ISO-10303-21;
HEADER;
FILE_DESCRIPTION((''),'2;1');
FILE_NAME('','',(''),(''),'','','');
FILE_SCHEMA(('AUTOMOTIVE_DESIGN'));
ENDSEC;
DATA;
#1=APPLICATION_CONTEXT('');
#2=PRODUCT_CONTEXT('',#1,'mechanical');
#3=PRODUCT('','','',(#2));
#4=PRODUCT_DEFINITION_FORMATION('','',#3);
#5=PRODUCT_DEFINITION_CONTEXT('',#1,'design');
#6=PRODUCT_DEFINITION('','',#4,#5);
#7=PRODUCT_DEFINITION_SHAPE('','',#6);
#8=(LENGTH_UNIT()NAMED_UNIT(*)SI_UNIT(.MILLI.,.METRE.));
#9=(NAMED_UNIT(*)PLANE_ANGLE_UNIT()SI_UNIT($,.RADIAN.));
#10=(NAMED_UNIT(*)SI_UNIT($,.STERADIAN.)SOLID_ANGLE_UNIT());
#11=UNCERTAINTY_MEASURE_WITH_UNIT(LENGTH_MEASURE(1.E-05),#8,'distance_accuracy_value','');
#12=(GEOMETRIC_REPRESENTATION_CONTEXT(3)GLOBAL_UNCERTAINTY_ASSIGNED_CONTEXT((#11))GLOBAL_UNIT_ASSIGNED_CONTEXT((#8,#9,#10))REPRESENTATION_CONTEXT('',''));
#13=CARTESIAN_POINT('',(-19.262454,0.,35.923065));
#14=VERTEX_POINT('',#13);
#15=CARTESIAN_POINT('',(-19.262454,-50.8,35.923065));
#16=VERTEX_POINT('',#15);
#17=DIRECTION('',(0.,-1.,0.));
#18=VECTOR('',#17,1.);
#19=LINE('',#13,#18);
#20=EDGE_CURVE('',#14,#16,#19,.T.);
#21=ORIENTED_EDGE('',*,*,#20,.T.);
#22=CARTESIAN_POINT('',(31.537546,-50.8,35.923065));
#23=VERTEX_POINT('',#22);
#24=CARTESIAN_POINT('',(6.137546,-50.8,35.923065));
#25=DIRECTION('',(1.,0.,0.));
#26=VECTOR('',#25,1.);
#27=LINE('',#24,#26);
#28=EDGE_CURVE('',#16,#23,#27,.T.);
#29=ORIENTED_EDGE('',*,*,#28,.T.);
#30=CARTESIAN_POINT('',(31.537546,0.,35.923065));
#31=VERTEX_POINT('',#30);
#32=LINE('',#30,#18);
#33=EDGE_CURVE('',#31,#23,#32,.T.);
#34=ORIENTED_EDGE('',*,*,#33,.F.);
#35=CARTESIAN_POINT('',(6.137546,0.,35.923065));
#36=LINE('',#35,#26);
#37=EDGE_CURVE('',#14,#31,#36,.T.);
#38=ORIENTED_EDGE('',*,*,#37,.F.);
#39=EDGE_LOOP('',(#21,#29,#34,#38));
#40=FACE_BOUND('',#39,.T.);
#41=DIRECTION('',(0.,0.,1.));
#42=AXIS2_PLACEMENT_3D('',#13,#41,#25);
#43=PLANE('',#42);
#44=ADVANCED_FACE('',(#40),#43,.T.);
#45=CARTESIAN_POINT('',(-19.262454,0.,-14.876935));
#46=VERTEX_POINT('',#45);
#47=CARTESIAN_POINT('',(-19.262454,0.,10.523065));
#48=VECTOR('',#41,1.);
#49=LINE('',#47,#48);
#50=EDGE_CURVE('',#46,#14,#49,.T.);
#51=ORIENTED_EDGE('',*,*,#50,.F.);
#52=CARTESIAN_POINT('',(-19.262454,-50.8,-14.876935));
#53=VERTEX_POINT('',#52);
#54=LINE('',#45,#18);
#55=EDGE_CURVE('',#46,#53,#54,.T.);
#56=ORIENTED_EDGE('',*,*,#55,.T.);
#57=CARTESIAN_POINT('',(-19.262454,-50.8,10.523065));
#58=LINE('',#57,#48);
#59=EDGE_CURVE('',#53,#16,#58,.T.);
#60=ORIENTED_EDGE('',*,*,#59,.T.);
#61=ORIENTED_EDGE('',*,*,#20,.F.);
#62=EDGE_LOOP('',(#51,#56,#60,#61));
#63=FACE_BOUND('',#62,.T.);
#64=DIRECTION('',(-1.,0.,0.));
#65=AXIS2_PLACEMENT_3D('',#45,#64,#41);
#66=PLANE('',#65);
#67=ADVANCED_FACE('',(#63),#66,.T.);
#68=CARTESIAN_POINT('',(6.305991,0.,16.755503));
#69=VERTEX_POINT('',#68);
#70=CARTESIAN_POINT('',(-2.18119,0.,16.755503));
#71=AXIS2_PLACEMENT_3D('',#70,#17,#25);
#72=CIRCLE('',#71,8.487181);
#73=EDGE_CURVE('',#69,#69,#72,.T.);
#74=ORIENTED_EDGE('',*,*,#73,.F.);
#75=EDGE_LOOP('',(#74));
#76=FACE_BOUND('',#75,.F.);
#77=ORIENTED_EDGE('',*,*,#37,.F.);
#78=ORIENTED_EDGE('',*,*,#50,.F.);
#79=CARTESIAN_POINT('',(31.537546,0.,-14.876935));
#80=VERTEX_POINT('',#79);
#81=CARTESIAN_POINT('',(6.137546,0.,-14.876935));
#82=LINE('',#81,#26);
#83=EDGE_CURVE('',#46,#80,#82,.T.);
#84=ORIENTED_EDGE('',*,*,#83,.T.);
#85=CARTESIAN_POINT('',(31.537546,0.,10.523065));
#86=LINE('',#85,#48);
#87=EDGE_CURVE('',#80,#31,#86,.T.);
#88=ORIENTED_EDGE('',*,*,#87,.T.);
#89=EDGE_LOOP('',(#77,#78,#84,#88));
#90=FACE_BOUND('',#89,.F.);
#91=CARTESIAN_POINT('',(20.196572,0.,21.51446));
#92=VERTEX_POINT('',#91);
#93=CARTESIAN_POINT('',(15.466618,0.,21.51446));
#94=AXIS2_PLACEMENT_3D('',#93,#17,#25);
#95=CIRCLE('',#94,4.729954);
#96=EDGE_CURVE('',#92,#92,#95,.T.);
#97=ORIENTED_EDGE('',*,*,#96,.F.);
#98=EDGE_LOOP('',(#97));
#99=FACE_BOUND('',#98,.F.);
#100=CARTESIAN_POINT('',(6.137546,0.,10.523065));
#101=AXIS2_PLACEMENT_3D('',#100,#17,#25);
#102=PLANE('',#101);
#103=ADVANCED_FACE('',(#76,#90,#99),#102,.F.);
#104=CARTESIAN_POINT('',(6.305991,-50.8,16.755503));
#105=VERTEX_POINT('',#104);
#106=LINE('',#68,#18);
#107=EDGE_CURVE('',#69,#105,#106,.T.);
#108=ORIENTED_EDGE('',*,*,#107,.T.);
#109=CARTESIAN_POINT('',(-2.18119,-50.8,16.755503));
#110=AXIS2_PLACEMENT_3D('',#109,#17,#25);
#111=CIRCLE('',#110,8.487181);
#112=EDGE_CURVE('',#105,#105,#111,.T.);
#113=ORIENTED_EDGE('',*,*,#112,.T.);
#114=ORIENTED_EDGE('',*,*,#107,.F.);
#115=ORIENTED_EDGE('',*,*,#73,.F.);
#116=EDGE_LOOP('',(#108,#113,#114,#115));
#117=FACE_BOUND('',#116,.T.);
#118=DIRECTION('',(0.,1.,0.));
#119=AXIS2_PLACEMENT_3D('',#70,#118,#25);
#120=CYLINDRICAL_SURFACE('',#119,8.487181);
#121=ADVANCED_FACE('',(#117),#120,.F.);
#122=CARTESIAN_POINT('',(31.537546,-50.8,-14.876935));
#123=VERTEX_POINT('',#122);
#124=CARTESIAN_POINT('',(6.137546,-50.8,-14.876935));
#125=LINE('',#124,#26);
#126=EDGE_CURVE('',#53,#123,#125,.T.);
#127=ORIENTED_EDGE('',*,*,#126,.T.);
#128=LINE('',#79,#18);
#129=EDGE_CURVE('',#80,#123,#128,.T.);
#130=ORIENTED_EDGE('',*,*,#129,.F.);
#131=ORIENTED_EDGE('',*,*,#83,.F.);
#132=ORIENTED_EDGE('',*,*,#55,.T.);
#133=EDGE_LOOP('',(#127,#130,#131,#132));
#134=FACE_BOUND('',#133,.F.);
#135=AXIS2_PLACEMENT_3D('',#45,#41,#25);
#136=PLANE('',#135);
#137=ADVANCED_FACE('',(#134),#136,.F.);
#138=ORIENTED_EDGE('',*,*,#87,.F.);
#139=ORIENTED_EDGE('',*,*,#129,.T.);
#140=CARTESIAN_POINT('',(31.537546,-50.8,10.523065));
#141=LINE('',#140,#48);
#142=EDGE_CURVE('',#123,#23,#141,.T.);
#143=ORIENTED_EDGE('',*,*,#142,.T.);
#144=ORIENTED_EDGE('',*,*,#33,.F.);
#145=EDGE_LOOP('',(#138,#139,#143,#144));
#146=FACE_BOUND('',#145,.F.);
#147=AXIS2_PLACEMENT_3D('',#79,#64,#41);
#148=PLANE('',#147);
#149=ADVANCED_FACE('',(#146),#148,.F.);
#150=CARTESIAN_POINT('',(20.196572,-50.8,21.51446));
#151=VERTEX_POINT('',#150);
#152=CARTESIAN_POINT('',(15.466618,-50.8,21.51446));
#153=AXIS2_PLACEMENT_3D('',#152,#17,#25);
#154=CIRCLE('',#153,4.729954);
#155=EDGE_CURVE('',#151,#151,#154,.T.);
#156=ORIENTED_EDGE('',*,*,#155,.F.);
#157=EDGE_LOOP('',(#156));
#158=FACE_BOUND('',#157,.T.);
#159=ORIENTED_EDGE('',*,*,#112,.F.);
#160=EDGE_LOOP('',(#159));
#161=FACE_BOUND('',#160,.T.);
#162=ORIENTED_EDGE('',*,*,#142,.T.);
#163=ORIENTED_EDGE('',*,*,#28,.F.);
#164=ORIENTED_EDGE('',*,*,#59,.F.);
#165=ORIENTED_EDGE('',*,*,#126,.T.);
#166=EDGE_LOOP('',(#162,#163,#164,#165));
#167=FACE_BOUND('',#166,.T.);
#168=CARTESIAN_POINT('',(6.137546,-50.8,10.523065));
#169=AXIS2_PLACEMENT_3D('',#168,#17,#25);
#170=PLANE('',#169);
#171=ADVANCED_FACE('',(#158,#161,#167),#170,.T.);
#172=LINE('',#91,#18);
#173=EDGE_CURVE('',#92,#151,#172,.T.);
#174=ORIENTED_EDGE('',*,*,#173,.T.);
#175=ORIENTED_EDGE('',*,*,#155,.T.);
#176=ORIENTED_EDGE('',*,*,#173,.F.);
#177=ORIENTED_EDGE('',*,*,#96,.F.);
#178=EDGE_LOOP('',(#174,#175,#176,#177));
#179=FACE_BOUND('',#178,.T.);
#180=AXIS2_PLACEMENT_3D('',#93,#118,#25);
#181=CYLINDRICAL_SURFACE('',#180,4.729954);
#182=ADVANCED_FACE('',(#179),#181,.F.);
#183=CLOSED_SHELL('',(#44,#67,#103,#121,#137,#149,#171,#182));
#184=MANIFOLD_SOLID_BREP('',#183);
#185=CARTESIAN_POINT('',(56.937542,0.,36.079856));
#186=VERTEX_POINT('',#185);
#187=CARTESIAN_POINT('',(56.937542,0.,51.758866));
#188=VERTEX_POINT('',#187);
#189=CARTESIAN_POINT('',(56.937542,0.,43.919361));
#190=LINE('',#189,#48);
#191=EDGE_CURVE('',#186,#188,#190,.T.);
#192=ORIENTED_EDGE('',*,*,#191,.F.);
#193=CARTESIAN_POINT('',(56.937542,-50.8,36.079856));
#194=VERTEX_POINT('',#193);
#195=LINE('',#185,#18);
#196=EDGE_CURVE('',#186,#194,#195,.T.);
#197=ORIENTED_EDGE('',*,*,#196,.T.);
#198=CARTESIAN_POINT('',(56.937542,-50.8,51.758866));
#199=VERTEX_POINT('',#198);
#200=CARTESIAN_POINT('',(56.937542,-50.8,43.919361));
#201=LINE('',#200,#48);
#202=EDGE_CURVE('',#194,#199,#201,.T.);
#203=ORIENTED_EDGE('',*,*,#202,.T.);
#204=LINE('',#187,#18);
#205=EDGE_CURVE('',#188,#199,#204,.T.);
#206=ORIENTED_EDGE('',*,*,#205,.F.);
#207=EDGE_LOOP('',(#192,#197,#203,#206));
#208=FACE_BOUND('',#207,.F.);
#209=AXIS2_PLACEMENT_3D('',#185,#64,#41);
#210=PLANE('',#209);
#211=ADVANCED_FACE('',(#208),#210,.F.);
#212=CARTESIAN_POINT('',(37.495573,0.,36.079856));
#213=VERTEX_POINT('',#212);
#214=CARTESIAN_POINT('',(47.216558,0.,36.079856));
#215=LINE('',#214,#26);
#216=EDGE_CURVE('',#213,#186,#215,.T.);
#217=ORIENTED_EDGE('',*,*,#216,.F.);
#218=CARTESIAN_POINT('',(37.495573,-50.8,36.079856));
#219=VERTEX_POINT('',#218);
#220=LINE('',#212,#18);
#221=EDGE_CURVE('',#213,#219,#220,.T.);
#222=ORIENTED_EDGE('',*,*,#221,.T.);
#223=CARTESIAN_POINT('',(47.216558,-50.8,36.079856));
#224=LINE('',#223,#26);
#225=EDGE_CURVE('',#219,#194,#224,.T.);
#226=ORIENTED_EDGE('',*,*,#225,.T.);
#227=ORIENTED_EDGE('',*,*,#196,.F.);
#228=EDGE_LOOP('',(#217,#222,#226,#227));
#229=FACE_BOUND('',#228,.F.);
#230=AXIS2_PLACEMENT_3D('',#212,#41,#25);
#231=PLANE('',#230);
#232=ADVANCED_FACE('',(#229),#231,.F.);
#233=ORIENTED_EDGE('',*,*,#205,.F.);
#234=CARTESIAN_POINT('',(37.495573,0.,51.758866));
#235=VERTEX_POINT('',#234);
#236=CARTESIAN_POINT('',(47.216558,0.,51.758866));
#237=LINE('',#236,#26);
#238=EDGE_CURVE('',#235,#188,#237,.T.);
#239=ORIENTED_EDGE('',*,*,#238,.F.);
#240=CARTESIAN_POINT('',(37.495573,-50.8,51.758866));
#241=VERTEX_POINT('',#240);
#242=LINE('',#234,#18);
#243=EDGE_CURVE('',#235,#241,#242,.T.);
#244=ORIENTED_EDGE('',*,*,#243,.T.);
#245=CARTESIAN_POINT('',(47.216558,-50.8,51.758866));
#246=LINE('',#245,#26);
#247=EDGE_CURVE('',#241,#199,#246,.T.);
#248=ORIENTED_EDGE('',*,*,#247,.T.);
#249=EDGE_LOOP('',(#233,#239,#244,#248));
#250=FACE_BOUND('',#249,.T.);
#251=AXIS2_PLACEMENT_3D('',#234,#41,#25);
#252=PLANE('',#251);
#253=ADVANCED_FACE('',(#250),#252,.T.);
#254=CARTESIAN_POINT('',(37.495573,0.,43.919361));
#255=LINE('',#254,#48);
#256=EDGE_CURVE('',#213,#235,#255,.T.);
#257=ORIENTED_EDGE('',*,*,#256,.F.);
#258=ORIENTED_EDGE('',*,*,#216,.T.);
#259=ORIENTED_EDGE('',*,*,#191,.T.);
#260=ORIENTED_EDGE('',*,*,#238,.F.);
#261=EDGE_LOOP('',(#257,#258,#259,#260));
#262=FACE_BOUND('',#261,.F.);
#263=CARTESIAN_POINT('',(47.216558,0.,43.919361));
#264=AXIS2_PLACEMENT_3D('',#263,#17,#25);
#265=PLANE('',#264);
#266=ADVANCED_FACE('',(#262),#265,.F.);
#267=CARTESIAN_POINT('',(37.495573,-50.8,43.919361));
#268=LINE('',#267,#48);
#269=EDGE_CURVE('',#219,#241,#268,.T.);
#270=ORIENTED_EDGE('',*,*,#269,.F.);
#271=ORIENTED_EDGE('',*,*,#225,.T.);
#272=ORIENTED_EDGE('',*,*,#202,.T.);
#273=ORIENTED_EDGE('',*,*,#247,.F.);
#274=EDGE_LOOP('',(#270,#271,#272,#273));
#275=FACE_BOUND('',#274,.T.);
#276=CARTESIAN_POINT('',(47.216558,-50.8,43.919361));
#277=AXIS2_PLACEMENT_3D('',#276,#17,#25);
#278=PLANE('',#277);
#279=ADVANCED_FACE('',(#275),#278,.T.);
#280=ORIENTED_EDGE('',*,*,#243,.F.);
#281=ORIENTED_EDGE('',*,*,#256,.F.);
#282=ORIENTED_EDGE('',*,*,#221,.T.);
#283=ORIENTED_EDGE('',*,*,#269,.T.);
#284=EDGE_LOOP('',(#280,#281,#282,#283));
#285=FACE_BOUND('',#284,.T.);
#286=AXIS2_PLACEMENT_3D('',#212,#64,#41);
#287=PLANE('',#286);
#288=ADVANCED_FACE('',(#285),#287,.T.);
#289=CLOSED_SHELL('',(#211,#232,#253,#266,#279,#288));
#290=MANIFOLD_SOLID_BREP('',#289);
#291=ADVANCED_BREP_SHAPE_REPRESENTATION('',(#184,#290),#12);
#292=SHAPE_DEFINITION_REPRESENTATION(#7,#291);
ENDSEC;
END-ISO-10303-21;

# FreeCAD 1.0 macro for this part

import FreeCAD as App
import Part
import Sketcher
from FreeCAD import Vector
Q = App.Units.Quantity

doc = App.newDocument("Part")
params = doc.addObject("Spreadsheet::Sheet", "Params")
for row, (alias, value) in enumerate([
    ("sketch1_width", "2 in"),
    ("pad1_length", "2 in"),
], start=1):
    params.set(f"A{row}", alias)
    params.set(f"B{row}", "=" + value)
    params.setAlias(f"B{row}", alias)

body = doc.addObject("PartDesign::Body", "Body")
body.AllowCompound = True

# Sketch on XZ plane
sketch1 = doc.addObject("Sketcher::SketchObject", "Sketch")
body.addObject(sketch1)
sketch1.AttachmentSupport = (doc.XZ_Plane, [""])
sketch1.MapMode = "FlatFace"
sketch1.addGeometry([
    Part.LineSegment(Vector(37.5, 51.8, 0), Vector(37.5, 36.1, 0)),  # 0
    Part.LineSegment(Vector(37.5, 36.1, 0), Vector(56.9, 36.1, 0)),  # 1
    Part.LineSegment(Vector(56.9, 36.1, 0), Vector(56.9, 51.8, 0)),  # 2
    Part.LineSegment(Vector(56.9, 51.8, 0), Vector(37.5, 51.8, 0)),  # 3
    Part.LineSegment(Vector(-19.3, 35.9, 0), Vector(-19.3, -14.9, 0)),  # 4
    Part.LineSegment(Vector(-19.3, -14.9, 0), Vector(31.5, -14.9, 0)),  # 5
    Part.LineSegment(Vector(31.5, -14.9, 0), Vector(31.5, 35.9, 0)),  # 6
    Part.LineSegment(Vector(31.5, 35.9, 0), Vector(-19.3, 35.9, 0)),  # 7
    Part.Circle(Vector(-2.2, 16.8, 0), Vector(0, 0, 1), 8.5),  # 8
    Part.Circle(Vector(15.5, 21.5, 0), Vector(0, 0, 1), 4.7),  # 9
], False)
sketch1.addConstraint([
    Sketcher.Constraint("Coincident", 0, 2, 1, 1),
    Sketcher.Constraint("Coincident", 1, 2, 2, 1),
    Sketcher.Constraint("Coincident", 2, 2, 3, 1),
    Sketcher.Constraint("Coincident", 3, 2, 0, 1),
    Sketcher.Constraint("Coincident", 4, 2, 5, 1),
    Sketcher.Constraint("Coincident", 5, 2, 6, 1),
    Sketcher.Constraint("Coincident", 6, 2, 7, 1),
    Sketcher.Constraint("Coincident", 7, 2, 4, 1),
    Sketcher.Constraint("Vertical", 0),
    Sketcher.Constraint("Horizontal", 1),
    Sketcher.Constraint("Vertical", 2),
    Sketcher.Constraint("Horizontal", 3),
    Sketcher.Constraint("Vertical", 4),
    Sketcher.Constraint("Horizontal", 5),
    Sketcher.Constraint("Vertical", 6),
    Sketcher.Constraint("Horizontal", 7),
    Sketcher.Constraint("Equal", 7, 4),
    Sketcher.Constraint("DistanceX", 5, 1, 5, 2, Q("2 in")),
    Sketcher.Constraint("DistanceX", 4, 2, 1, 2, Q("2.9999999 in")),
    Sketcher.Constraint("Diameter", 8, 16.974362),
    Sketcher.Constraint("Diameter", 9, 9.459908),
    Sketcher.Constraint("DistanceX", 1, 1, 1, 2, 19.441969),
    Sketcher.Constraint("DistanceY", 0, 2, 0, 1, 15.67901),
    Sketcher.Constraint("DistanceY", 4, 2, 3, 2, 66.635801),
    Sketcher.Constraint("DistanceX", 8, 3, -1, 1, 2.18119),
    Sketcher.Constraint("DistanceY", -1, 1, 9, 3, 21.51446),
    Sketcher.Constraint("DistanceX", 8, 3, 9, 3, 17.647808),
    Sketcher.Constraint("DistanceY", 4, 2, 8, 3, 31.632438),
    Sketcher.Constraint("DistanceY", -1, 1, 8, 3, 16.755503),
    Sketcher.Constraint("DistanceX", -1, 1, 0, 2, 37.495573),
])
sketch1.setExpression("Constraints[17]", "Params.sketch1_width")
pad1 = doc.addObject("PartDesign::Pad", "Pad")
body.addObject(pad1)
pad1.Profile = sketch1
pad1.setExpression("Length", "Params.pad1_length")

doc.recompute()
